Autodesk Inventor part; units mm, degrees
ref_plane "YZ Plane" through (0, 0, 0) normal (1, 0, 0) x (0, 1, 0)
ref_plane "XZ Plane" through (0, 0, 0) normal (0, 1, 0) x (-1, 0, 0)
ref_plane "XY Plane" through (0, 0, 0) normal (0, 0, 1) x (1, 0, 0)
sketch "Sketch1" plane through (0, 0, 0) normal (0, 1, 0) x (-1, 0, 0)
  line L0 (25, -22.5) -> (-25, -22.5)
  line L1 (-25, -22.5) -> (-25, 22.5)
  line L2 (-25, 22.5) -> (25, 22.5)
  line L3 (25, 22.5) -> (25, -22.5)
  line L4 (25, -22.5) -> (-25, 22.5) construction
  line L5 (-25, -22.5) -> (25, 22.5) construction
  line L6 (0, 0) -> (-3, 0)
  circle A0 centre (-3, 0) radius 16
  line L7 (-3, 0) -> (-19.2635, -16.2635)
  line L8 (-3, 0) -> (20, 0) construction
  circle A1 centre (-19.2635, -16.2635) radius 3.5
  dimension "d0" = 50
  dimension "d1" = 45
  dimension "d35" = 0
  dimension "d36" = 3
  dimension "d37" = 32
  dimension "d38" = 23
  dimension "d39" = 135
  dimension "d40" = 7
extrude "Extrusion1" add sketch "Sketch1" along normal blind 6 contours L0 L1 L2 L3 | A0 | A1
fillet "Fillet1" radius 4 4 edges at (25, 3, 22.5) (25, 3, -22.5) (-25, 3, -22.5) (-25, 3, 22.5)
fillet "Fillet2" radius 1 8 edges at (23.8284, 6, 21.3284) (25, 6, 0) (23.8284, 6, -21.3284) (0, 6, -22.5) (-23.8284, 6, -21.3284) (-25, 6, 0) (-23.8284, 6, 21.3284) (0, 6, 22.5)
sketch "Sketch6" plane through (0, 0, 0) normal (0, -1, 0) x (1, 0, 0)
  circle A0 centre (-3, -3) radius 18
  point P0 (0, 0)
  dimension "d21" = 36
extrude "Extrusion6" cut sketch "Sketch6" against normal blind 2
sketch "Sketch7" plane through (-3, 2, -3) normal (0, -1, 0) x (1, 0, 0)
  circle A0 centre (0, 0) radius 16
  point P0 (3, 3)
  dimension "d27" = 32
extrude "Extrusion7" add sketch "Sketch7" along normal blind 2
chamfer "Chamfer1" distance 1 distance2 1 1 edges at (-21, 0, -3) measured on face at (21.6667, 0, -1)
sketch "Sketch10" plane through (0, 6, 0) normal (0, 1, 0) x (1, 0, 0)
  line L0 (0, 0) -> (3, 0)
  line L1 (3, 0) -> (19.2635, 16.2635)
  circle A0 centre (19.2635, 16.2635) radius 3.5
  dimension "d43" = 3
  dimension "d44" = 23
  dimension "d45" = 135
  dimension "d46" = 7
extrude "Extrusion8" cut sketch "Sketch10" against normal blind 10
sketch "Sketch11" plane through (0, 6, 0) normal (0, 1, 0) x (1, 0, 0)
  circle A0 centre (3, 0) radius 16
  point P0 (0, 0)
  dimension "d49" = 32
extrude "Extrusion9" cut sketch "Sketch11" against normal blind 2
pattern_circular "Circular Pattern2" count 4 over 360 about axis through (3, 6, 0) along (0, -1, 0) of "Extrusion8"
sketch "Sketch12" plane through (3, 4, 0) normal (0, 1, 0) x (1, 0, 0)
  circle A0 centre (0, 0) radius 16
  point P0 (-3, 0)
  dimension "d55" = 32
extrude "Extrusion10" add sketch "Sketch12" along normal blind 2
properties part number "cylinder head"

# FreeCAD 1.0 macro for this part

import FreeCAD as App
import Part
import Sketcher

V = App.Vector


def edges_at(feature, points):
    """Names of the edges that pass closest to the given points."""
    edges = feature.Shape.Edges
    near = lambda p: min(range(len(edges)), key=lambda i: edges[i].distToShape(Part.Vertex(*p))[0])
    return sorted({f"Edge{near(p) + 1}" for p in points})


def add_polygon(sketch, points):
    """Adds a closed chain of lines whose ends are joined by coincident constraints."""
    first, n = sketch.GeometryCount, len(points)
    for a, b in zip(points, points[1:] + points[:1]):
        sketch.addGeometry(Part.LineSegment(App.Vector(*a, 0), App.Vector(*b, 0)), False)
    for i in range(n):
        sketch.addConstraint(Sketcher.Constraint("Coincident", first + i, 2, first + (i + 1) % n, 1))

doc = App.newDocument("Part")
body = doc.addObject("PartDesign::Body", "Body")

# Sketch on XZ plane
sketch1 = body.newObject("Sketcher::SketchObject", "Sketch")
sketch1.AttachmentSupport = (doc.getObject("XZ_Plane"), [""])
sketch1.MapMode = "FlatFace"
add_polygon(sketch1, [(25, -22), (-25, -22), (-25, 22), (25, 22)])  # lines 0-3
sketch1.addConstraint([
    Sketcher.Constraint("Horizontal", 0),
    Sketcher.Constraint("Vertical", 1),
    Sketcher.Constraint("Horizontal", 2),
    Sketcher.Constraint("Vertical", 3),
    Sketcher.Constraint("Symmetric", 0, 2, 2, 2, -1, 1),
    Sketcher.Constraint("DistanceX", 0, 2, 0, 1, 50.0),
    Sketcher.Constraint("DistanceY", 1, 1, 1, 2, 45.0),
])
pad1 = body.newObject("PartDesign::Pad", "Pad")
pad1.Profile = sketch1
pad1.Length = 6
pad1.Reversed = True
doc.recompute()

fillet = body.newObject("PartDesign::Fillet", "Fillet")
fillet.Base = (pad1, edges_at(pad1, [
    (25, 3, 22.5),
    (25, 3, -22.5),
    (-25, 3, -22.5),
    (-25, 3, 22.5),
]))
fillet.Radius = 4
doc.recompute()

fillet2 = body.newObject("PartDesign::Fillet", "Fillet001")
fillet2.Base = (fillet, edges_at(fillet, [
    (23.828, 6, 21.328),
    (25, 6, 0),
    (23.828, 6, -21.328),
    (0, 6, -22.5),
    (-23.828, 6, -21.328),
    (-25, 6, 0),
    (-23.828, 6, 21.328),
    (0, 6, 22.5),
]))
fillet2.Radius = 1

# Sketch on XZ plane
sketch2 = body.newObject("Sketcher::SketchObject", "Sketch001")
sketch2.AttachmentSupport = (doc.getObject("XZ_Plane"), [""])
sketch2.MapMode = "FlatFace"
sketch2.addGeometry(Part.Circle(V(-3, -3, 0), V(0, 0, 1), 18), False)
sketch2.addConstraint([
    Sketcher.Constraint("Diameter", 0, 36.0),
    Sketcher.Constraint("DistanceX", 0, 3, -1, 1, 3.0),
    Sketcher.Constraint("DistanceY", 0, 3, -1, 1, 3.0),
])
pocket1 = body.newObject("PartDesign::Pocket", "Pocket")
pocket1.Profile = sketch2
pocket1.Length = 2

# Sketch on XZ plane
sketch3 = body.newObject("Sketcher::SketchObject", "Sketch002")
sketch3.AttachmentSupport = (doc.getObject("XZ_Plane"), [""])
sketch3.MapMode = "FlatFace"
sketch3.AttachmentOffset = App.Placement(V(0, 0, -2), App.Rotation())
sketch3.addGeometry(Part.Circle(V(-3, -3, 0), V(0, 0, 1), 16), False)
sketch3.addConstraint([
    Sketcher.Constraint("Diameter", 0, 32.0),
    Sketcher.Constraint("DistanceX", 0, 3, -1, 1, 3.0),
    Sketcher.Constraint("DistanceY", 0, 3, -1, 1, 3.0),
])
pad2 = body.newObject("PartDesign::Pad", "Pad001")
pad2.Profile = sketch3
pad2.Length = 2
doc.recompute()

chamfer = body.newObject("PartDesign::Chamfer", "Chamfer")
chamfer.Base = (pad2, edges_at(pad2, [(-21, 0, -3)]))
chamfer.ChamferType = "Two distances"
chamfer.Size = 1
chamfer.Size2 = 1

# Sketch on XZ plane
sketch4 = body.newObject("Sketcher::SketchObject", "Sketch003")
sketch4.AttachmentSupport = (doc.getObject("XZ_Plane"), [""])
sketch4.MapMode = "FlatFace"
sketch4.AttachmentOffset = App.Placement(V(0, 0, -6), App.Rotation())
sketch4.addGeometry(Part.Circle(V(19.3, -16.3, 0), V(0, 0, 1), 3.5), False)
sketch4.addConstraint([
    Sketcher.Constraint("Diameter", 0, 7.0),
    Sketcher.Constraint("DistanceX", -1, 1, 0, 3, 19.2635),
    Sketcher.Constraint("DistanceY", 0, 3, -1, 1, 16.2635),
])
pocket2 = body.newObject("PartDesign::Pocket", "Pocket001")
pocket2.Profile = sketch4
pocket2.Length = 10
pocket2.Reversed = True

# Sketch on XZ plane
sketch5 = body.newObject("Sketcher::SketchObject", "Sketch004")
sketch5.AttachmentSupport = (doc.getObject("XZ_Plane"), [""])
sketch5.MapMode = "FlatFace"
sketch5.AttachmentOffset = App.Placement(V(0, 0, -6), App.Rotation())
sketch5.addGeometry(Part.Circle(V(3, 0, 0), V(0, 0, 1), 16), False)
sketch5.addConstraint([
    Sketcher.Constraint("PointOnObject", 0, 3, -1),
    Sketcher.Constraint("Diameter", 0, 32.0),
    Sketcher.Constraint("DistanceX", -1, 1, 0, 3, 3.0),
])
pocket3 = body.newObject("PartDesign::Pocket", "Pocket002")
pocket3.Profile = sketch5
pocket3.Length = 2
pocket3.Reversed = True
doc.recompute()

datumline = body.newObject("PartDesign::Line", "DatumLine")
datumline.Placement = App.Placement(V(3, 0, 0), App.Rotation(V(0, 0, 1), V(0, 1, 0)))
polarpattern = body.newObject("PartDesign::PolarPattern", "PolarPattern")
polarpattern.Originals = [pocket2]
polarpattern.Axis = (datumline, [""])
polarpattern.Angle = 360
polarpattern.Occurrences = 4
body.Tip = polarpattern

# Sketch on XZ plane
sketch6 = body.newObject("Sketcher::SketchObject", "Sketch005")
sketch6.AttachmentSupport = (doc.getObject("XZ_Plane"), [""])
sketch6.MapMode = "FlatFace"
sketch6.AttachmentOffset = App.Placement(V(0, 0, -4), App.Rotation())
sketch6.addGeometry(Part.Circle(V(3, 0, 0), V(0, 0, 1), 16), False)
sketch6.addConstraint([
    Sketcher.Constraint("PointOnObject", 0, 3, -1),
    Sketcher.Constraint("Diameter", 0, 32.0),
    Sketcher.Constraint("DistanceX", -1, 1, 0, 3, 3.0),
])
pad3 = body.newObject("PartDesign::Pad", "Pad002")
pad3.Profile = sketch6
pad3.Length = 2
pad3.Reversed = True

doc.recompute()
